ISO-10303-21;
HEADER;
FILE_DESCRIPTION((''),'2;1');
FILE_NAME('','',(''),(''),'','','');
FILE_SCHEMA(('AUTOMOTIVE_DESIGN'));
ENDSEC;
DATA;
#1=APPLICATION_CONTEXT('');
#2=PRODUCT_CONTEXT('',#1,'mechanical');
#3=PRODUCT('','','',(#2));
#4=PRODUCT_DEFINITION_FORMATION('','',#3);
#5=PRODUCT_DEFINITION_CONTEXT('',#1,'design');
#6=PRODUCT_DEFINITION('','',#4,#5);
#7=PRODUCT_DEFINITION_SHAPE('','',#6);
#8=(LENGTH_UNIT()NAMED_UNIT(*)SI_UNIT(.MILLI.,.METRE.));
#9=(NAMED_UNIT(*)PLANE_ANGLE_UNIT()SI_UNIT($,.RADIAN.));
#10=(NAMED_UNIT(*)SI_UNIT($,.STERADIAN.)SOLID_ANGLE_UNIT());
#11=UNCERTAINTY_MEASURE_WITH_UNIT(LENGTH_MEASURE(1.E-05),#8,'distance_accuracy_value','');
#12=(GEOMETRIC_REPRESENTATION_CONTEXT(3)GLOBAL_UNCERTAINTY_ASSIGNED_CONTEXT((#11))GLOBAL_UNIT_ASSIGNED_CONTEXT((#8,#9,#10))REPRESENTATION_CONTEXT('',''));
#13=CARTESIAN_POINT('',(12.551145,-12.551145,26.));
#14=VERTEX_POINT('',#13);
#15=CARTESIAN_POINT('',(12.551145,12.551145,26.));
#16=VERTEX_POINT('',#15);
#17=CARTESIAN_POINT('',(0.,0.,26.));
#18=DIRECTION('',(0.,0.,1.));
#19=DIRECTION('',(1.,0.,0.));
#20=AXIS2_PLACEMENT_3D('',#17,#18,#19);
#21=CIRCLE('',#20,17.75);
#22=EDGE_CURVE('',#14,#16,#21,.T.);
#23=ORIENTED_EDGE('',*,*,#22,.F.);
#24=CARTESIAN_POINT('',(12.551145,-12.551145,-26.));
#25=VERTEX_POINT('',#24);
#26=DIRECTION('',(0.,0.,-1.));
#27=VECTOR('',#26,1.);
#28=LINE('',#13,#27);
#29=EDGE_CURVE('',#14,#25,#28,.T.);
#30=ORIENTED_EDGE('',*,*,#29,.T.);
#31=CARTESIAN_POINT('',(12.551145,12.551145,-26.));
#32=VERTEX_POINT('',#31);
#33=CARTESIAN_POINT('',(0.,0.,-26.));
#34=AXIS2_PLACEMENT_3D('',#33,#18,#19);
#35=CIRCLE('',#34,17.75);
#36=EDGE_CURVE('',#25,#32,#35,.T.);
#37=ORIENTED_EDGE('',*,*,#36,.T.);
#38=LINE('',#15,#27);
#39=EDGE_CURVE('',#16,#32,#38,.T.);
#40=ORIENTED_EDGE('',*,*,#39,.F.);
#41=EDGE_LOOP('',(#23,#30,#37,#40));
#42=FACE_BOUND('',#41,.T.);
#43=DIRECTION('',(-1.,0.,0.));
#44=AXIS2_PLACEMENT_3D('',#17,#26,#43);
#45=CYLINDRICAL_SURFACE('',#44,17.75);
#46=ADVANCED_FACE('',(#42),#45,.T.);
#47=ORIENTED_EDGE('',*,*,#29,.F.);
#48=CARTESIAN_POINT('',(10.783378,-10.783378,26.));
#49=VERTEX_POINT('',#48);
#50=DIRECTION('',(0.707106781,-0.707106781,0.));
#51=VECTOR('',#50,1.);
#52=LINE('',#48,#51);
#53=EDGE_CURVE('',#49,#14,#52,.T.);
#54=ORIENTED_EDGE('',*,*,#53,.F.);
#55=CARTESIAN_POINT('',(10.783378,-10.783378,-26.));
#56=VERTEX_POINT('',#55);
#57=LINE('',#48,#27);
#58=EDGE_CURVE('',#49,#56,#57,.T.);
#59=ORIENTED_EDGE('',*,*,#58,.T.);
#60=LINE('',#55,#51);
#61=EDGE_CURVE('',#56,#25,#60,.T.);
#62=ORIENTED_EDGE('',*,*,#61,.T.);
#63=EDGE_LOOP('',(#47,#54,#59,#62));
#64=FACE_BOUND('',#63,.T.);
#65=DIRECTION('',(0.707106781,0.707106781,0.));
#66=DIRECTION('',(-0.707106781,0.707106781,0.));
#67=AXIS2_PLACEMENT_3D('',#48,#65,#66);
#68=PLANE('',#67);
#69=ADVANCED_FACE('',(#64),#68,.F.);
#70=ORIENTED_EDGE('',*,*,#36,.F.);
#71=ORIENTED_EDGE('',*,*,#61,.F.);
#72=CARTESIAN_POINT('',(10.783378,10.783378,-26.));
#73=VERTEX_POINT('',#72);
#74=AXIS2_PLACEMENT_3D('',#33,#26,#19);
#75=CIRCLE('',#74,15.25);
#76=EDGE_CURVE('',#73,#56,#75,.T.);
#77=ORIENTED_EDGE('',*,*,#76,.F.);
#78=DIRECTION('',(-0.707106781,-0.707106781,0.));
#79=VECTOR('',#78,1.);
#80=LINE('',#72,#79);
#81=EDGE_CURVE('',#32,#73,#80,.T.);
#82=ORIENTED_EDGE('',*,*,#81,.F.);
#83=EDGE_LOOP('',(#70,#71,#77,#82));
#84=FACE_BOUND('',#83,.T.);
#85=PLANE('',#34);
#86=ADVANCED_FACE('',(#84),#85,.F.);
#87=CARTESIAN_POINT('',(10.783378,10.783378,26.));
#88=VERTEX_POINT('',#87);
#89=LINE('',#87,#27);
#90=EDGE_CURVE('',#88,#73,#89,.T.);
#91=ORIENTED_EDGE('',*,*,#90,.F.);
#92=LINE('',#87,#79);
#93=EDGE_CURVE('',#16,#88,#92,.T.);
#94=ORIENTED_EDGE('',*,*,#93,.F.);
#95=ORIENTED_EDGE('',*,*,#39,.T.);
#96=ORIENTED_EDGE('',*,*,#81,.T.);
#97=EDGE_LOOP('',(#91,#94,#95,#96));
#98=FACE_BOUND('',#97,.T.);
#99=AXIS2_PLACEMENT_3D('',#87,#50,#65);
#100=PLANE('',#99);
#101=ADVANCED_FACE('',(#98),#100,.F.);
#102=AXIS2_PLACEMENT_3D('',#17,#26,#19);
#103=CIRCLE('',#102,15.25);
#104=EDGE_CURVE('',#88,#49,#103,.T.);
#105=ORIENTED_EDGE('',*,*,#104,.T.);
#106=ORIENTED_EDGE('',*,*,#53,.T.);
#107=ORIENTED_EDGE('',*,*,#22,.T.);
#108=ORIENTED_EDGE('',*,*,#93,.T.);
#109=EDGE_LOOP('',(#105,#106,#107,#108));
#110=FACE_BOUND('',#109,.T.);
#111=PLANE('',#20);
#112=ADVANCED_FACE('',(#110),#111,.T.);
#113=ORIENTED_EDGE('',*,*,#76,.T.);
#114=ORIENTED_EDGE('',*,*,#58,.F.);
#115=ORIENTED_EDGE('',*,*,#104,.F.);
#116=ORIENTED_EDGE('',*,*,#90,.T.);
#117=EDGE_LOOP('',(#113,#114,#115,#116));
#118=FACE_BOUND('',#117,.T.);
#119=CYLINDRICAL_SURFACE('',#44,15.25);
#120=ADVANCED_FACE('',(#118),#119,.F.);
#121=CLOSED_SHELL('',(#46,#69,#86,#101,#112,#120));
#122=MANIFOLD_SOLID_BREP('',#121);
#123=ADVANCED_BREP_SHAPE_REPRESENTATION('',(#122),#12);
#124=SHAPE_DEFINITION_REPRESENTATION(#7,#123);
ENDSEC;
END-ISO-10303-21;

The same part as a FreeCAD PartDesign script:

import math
import FreeCAD as App
import Part
import Sketcher
from FreeCAD import Vector

doc = App.newDocument("Part")
body = doc.addObject("PartDesign::Body", "Body")

sketch1 = doc.addObject("Sketcher::SketchObject", "Sketch")
body.addObject(sketch1)
sketch1.AttachmentSupport = (doc.XY_Plane, [""])
sketch1.MapMode = "FlatFace"
sketch1.addGeometry([
    Part.LineSegment(Vector(12.551145, 12.551145, 0), Vector(10.783378, 10.783378, 0)),
    Part.ArcOfCircle(Part.Circle(Vector(0, 0, 0), Vector(0, 0, 1), 15.25), math.radians(-45), math.radians(45)),
    Part.LineSegment(Vector(10.783378, -10.783378, 0), Vector(12.551145, -12.551145, 0)),
    Part.ArcOfCircle(Part.Circle(Vector(0, 0, 0), Vector(0, 0, 1), 17.75), math.radians(-45), math.radians(45)),
], False)
sketch1.addConstraint([
    Sketcher.Constraint("Coincident", 0, 2, 1, 2),
    Sketcher.Constraint("Coincident", 1, 1, 2, 1),
    Sketcher.Constraint("Coincident", 2, 2, 3, 1),
    Sketcher.Constraint("Coincident", 3, 2, 0, 1),
    Sketcher.Constraint("Coincident", 1, 3, -1, 1),
    Sketcher.Constraint("Coincident", 3, 3, -1, 1),
    Sketcher.Constraint("Perpendicular", 0, 2),
    Sketcher.Constraint("Vertical", 0, 2, 1, 1),
    Sketcher.Constraint("Vertical", 2, 2, 3, 2),
    Sketcher.Constraint("Radius", 1, 15.25),
    Sketcher.Constraint("Radius", 3, 17.75),
    Sketcher.Constraint("DistanceX", -1, 1, 0, 2, 10.783378),
])
pad1 = doc.addObject("PartDesign::Pad", "Pad")
body.addObject(pad1)
pad1.Profile = sketch1
pad1.Length = 52
pad1.Midplane = True

doc.recompute()
